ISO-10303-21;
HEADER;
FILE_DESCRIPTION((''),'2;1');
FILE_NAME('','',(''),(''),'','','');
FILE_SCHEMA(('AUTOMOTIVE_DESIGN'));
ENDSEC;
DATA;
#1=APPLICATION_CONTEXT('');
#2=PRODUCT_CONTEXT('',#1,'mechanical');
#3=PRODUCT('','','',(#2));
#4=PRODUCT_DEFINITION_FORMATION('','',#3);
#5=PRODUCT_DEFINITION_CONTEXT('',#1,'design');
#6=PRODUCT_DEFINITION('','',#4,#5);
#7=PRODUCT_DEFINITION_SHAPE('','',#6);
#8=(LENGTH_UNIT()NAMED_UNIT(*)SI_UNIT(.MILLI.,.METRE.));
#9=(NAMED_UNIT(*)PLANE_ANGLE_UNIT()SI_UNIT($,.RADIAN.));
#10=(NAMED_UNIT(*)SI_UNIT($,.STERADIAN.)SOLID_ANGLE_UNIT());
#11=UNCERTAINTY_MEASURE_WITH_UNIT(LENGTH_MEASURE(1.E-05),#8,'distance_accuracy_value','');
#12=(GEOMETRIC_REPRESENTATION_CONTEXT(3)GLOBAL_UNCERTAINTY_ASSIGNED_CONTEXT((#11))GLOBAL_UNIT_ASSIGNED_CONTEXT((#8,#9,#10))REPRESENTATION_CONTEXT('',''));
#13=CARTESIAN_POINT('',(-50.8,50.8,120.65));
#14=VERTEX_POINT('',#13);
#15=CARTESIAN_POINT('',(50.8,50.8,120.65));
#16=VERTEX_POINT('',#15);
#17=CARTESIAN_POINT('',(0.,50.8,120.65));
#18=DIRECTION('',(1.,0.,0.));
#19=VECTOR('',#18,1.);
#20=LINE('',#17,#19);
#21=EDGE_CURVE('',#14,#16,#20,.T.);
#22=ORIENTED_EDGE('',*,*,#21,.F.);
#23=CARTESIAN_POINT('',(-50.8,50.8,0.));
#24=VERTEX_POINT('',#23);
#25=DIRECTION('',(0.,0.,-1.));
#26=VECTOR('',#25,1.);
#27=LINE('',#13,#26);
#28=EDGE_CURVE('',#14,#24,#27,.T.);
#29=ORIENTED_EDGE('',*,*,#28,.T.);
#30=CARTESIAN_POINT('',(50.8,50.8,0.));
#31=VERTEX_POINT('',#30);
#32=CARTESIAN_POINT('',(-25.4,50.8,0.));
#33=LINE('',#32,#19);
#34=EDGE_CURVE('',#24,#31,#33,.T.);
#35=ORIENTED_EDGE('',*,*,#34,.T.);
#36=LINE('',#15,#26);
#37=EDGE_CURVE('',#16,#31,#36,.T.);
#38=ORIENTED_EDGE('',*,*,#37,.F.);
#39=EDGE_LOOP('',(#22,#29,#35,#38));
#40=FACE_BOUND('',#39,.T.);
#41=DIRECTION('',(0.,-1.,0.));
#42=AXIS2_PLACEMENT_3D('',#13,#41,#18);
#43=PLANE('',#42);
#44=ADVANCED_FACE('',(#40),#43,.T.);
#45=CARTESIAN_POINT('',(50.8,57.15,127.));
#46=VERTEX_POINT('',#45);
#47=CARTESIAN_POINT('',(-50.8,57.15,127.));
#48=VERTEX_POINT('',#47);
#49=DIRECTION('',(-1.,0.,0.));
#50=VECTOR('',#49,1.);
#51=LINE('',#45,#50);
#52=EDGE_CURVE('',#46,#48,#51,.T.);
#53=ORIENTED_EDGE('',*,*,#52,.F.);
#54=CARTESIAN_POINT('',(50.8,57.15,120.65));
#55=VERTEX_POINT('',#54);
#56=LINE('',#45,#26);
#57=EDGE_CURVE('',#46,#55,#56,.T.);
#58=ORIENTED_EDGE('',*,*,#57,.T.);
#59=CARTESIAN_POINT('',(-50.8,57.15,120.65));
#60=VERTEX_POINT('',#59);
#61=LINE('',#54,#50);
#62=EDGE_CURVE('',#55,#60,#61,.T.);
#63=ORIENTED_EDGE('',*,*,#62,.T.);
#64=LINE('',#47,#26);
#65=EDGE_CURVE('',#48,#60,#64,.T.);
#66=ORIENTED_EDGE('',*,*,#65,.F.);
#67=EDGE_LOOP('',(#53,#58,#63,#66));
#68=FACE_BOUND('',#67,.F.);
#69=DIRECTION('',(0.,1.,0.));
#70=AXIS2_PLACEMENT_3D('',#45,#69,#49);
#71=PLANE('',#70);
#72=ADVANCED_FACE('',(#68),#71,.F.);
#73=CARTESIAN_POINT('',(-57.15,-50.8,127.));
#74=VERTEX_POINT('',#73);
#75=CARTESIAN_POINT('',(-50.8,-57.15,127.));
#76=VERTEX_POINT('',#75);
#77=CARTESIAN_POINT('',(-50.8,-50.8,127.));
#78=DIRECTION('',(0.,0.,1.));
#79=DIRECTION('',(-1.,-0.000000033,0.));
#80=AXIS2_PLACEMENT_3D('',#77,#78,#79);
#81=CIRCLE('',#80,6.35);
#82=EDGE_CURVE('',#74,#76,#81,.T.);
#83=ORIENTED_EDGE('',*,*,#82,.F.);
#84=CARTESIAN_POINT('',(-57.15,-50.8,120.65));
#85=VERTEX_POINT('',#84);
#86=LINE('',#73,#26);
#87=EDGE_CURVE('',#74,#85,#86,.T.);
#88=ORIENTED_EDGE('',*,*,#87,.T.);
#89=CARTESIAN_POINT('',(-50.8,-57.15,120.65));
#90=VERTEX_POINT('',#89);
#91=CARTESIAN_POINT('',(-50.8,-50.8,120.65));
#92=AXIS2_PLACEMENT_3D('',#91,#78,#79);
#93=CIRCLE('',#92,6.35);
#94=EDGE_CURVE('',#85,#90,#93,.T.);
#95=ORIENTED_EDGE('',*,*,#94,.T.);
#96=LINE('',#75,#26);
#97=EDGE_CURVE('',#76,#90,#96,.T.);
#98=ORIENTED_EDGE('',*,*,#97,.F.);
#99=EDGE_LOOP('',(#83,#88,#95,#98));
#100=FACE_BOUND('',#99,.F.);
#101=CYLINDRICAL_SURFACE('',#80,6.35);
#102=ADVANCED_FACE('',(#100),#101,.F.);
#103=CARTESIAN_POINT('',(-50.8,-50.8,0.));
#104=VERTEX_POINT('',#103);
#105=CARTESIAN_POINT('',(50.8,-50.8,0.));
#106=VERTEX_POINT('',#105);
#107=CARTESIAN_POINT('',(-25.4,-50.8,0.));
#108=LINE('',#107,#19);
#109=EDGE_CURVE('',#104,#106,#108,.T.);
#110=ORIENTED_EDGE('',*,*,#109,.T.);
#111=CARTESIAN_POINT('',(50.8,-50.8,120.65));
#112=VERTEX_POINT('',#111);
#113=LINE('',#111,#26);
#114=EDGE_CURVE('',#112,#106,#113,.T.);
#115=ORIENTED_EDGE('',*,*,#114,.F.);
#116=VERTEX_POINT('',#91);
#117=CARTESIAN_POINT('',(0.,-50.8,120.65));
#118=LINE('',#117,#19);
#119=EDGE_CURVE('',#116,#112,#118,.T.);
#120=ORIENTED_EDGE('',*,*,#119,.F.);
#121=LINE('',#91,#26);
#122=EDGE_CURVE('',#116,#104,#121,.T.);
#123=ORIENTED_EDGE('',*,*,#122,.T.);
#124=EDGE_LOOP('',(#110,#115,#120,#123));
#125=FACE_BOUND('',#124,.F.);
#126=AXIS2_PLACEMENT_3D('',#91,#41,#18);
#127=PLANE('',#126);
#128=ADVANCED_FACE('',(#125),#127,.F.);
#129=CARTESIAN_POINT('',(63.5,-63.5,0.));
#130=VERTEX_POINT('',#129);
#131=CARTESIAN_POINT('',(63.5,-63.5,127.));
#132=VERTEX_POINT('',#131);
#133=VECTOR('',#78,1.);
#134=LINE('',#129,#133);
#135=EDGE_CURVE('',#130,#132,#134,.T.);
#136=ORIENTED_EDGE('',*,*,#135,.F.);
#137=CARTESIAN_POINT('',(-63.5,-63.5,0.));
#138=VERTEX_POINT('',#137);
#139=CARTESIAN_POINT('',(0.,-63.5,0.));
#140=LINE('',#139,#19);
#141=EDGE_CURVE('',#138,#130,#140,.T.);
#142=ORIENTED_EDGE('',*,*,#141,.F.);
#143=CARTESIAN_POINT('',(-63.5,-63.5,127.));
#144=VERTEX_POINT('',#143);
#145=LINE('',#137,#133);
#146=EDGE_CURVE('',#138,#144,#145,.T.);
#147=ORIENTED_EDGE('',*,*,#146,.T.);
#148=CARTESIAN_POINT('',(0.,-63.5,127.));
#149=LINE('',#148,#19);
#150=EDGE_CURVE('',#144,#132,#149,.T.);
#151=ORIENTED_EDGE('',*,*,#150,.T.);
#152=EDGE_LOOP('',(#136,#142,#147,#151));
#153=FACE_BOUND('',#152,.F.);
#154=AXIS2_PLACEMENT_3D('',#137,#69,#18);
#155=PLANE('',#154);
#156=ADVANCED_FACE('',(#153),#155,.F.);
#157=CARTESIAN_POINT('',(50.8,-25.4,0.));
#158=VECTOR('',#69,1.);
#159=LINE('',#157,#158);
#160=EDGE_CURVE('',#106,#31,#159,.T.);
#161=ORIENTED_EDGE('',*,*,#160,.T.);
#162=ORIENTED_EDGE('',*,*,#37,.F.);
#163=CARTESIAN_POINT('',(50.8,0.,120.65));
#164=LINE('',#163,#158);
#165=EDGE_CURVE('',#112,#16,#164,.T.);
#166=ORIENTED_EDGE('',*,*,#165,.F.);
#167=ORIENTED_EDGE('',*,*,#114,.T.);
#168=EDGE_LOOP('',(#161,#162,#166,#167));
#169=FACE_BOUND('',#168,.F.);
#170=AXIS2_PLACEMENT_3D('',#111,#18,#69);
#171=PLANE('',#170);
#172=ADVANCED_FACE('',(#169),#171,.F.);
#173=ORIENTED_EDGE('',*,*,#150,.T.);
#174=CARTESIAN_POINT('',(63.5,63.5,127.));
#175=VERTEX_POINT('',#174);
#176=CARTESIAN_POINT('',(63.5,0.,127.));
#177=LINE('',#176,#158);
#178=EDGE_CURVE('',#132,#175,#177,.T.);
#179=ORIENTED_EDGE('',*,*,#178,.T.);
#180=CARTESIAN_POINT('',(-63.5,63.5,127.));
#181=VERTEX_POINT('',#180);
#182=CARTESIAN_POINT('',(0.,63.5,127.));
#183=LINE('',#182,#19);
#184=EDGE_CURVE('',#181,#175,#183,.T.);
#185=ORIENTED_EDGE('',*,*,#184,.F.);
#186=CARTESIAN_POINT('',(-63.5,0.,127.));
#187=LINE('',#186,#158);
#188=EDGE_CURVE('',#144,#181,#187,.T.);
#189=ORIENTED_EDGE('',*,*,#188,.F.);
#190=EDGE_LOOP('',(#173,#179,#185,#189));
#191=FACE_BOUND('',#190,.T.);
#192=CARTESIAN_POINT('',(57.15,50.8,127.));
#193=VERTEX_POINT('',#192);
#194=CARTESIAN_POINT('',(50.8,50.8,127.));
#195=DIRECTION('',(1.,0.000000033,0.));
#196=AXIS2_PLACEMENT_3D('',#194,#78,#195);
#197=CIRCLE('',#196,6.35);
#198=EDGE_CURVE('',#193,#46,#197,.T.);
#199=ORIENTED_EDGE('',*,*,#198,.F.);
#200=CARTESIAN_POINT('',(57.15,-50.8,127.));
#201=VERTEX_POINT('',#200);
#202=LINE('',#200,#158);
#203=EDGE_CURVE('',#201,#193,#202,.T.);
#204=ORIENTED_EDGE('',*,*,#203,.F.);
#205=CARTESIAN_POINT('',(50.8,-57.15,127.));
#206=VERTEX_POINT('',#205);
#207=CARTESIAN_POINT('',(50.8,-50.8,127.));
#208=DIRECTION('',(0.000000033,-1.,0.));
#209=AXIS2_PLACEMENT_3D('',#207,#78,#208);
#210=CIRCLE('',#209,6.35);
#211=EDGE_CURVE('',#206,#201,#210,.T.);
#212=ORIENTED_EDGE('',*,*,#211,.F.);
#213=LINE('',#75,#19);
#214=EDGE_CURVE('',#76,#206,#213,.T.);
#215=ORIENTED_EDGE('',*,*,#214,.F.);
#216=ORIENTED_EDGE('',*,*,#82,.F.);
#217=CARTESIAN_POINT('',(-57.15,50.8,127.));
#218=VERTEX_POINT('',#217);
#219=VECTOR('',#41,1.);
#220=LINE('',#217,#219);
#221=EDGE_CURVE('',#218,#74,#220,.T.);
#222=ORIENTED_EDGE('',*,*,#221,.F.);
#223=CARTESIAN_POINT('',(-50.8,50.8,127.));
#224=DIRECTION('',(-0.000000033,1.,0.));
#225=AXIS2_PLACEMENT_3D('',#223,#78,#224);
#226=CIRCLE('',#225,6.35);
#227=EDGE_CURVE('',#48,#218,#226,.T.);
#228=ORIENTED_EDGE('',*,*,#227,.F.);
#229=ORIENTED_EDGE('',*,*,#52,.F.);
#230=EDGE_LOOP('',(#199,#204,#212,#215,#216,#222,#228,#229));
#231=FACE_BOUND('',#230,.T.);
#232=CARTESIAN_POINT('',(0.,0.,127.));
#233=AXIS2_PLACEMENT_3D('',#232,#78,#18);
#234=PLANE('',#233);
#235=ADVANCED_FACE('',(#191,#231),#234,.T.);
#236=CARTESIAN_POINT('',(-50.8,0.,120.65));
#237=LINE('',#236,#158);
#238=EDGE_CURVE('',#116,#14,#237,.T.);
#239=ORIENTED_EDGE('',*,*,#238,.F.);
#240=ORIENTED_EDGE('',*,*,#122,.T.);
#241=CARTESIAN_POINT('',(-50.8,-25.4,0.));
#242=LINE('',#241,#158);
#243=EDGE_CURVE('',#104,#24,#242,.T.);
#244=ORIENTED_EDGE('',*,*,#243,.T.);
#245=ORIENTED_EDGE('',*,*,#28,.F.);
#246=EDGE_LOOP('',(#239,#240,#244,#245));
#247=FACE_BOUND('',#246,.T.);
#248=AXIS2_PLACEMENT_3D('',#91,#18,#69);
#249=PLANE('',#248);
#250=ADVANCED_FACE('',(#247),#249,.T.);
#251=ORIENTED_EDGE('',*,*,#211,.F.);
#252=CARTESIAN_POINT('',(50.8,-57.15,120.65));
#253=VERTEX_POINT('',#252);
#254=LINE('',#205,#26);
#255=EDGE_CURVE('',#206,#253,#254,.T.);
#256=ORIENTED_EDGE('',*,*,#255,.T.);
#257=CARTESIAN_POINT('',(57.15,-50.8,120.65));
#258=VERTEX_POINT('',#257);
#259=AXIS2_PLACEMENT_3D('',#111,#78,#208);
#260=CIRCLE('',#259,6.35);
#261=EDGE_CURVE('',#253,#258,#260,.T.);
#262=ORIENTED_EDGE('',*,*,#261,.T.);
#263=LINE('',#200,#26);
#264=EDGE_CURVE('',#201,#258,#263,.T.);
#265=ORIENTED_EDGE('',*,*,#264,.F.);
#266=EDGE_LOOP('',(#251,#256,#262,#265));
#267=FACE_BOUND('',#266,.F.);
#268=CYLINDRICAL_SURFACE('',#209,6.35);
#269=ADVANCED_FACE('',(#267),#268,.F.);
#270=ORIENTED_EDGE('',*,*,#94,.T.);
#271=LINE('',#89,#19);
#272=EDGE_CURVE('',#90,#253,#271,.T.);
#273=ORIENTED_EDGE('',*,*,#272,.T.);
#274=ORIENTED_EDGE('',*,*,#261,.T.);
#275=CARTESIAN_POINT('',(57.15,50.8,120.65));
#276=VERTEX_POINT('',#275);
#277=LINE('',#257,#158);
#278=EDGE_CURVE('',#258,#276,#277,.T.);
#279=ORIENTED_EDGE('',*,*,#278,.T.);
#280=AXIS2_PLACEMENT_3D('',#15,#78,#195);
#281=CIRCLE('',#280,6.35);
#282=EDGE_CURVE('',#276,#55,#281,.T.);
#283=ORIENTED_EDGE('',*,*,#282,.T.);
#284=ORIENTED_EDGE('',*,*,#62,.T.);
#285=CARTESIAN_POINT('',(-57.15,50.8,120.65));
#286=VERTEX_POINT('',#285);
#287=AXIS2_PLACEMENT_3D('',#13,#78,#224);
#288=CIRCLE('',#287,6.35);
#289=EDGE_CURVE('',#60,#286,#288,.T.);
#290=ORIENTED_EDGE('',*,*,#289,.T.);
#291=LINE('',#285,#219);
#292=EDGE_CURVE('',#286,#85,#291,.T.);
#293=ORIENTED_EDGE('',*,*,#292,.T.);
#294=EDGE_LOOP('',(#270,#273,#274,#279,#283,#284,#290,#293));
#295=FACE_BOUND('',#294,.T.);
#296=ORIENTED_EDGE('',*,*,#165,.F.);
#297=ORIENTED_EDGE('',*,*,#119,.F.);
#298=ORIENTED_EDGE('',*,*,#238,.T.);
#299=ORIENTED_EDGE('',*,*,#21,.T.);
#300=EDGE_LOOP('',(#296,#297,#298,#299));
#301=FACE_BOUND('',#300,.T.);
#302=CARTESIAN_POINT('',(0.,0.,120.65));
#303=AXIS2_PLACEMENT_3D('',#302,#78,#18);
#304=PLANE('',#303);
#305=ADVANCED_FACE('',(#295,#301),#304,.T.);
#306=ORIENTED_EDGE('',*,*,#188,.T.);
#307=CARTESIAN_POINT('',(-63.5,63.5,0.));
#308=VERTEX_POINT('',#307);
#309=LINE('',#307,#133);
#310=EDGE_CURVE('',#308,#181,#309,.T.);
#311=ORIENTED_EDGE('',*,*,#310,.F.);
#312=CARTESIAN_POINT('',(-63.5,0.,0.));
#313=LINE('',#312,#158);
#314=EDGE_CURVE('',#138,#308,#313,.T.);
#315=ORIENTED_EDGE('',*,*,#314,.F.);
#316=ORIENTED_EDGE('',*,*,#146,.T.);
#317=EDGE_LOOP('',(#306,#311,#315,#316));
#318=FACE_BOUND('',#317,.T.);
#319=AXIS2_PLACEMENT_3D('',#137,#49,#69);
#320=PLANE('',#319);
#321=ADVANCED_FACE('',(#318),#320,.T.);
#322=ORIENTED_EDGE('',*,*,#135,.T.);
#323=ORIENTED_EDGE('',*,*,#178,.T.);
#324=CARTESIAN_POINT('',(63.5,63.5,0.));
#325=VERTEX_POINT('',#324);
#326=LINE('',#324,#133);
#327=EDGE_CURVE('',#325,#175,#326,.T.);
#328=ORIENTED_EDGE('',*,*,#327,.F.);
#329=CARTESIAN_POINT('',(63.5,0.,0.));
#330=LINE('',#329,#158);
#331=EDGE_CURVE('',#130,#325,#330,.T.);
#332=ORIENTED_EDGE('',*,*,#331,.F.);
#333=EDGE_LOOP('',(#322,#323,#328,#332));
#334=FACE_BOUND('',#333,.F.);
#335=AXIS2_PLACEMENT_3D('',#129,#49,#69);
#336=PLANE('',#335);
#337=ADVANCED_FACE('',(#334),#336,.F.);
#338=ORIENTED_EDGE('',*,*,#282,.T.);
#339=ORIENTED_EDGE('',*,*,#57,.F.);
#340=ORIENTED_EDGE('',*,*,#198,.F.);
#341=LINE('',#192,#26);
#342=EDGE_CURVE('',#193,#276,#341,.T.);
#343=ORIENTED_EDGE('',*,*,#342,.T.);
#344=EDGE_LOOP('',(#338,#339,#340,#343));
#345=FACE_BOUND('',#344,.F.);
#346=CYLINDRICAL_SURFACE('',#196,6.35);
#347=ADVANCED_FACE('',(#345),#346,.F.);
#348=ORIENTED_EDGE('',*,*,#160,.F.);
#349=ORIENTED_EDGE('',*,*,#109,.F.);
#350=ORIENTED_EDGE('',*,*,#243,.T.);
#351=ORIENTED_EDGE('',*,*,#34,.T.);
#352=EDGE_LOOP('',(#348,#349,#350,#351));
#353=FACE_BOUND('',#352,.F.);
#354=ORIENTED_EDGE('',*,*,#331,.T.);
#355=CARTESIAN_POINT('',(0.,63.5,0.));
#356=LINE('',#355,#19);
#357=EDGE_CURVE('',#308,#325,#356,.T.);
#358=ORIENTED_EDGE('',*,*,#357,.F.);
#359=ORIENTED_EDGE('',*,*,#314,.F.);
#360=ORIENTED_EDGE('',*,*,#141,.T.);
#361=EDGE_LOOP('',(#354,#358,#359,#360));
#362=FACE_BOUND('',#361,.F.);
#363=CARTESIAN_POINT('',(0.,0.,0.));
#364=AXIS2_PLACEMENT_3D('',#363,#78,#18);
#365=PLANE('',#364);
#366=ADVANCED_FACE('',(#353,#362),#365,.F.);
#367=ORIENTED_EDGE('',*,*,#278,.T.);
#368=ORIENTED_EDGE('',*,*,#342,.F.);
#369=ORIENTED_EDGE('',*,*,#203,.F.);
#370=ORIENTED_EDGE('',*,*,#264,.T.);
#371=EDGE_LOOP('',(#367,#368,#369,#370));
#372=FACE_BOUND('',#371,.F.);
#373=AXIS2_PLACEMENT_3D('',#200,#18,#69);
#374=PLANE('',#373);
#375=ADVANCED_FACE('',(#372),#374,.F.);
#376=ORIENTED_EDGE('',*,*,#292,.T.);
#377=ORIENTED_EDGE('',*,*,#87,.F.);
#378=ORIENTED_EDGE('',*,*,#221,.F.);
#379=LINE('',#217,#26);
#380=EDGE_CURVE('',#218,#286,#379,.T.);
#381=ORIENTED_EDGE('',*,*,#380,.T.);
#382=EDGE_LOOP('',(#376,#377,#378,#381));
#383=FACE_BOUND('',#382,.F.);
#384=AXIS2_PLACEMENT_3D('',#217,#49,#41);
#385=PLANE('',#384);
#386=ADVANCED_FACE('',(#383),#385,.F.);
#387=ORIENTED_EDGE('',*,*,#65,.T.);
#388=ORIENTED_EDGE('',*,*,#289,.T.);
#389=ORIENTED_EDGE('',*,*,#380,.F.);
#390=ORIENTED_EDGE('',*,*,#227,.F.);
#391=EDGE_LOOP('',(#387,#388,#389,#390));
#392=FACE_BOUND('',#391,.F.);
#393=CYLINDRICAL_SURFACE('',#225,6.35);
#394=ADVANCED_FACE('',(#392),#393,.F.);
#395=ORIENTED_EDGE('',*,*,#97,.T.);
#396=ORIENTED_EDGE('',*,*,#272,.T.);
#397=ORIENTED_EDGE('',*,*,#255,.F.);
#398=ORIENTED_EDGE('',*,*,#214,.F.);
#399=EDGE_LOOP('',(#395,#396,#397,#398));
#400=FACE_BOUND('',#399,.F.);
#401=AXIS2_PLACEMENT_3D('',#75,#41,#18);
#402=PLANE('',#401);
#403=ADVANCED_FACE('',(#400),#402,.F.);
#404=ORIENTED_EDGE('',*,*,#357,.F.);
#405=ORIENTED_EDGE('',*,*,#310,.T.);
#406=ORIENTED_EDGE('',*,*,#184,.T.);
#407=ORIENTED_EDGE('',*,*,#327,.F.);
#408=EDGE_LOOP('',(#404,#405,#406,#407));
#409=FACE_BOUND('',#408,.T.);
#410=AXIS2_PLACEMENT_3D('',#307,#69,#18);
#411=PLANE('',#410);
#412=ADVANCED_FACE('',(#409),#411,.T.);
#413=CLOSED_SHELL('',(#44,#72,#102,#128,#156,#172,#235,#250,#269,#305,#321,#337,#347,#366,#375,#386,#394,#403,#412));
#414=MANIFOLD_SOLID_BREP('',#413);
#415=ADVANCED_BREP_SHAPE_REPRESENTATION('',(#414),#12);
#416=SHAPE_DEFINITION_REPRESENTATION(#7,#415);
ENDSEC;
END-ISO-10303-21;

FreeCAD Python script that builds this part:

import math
import FreeCAD as App
import Part
import Sketcher
Q = App.Units.Quantity

doc = App.newDocument("Part")
params = doc.addObject("Spreadsheet::Sheet", "Params")
for row, (alias, value) in enumerate([
    ("sketch1_width", "5 in"),
    ("pad1_length", "5 in"),
    ("sketch2_width", "4 in"),
    ("sketch2_radius", "0.25 in"),
    ("pocket1_length", "0.25 in"),
    ("sketch3_width", "4 in"),
    ("pocket2_length", "5 in"),
], start=1):
    params.set(f"A{row}", alias)
    params.set(f"B{row}", "=" + value)
    params.setAlias(f"B{row}", alias)

body = doc.addObject("PartDesign::Body", "Body")

# Sketch on XY plane
sketch1 = doc.addObject("Sketcher::SketchObject", "Sketch")
body.addObject(sketch1)
sketch1.AttachmentSupport = (doc.XY_Plane, [""])
sketch1.MapMode = "FlatFace"
sketch1.addGeometry([
    Part.LineSegment(App.Vector(-63.5, 63.5, 0), App.Vector(-63.5, -63.5, 0)),
    Part.LineSegment(App.Vector(-63.5, -63.5, 0), App.Vector(63.5, -63.5, 0)),
    Part.LineSegment(App.Vector(63.5, -63.5, 0), App.Vector(63.5, 63.5, 0)),
    Part.LineSegment(App.Vector(63.5, 63.5, 0), App.Vector(-63.5, 63.5, 0)),
], False)
sketch1.addConstraint([
    Sketcher.Constraint("Coincident", 0, 2, 1, 1),
    Sketcher.Constraint("Coincident", 1, 2, 2, 1),
    Sketcher.Constraint("Coincident", 2, 2, 3, 1),
    Sketcher.Constraint("Coincident", 3, 2, 0, 1),
    Sketcher.Constraint("Vertical", 0),
    Sketcher.Constraint("Horizontal", 1),
    Sketcher.Constraint("Vertical", 2),
    Sketcher.Constraint("Horizontal", 3),
    Sketcher.Constraint("Symmetric", 0, 2, 2, 2, -1, 1),
    Sketcher.Constraint("Equal", 3, 0),
    Sketcher.Constraint("DistanceX", 1, 1, 1, 2, Q("5 in")),
])
sketch1.setExpression("Constraints[10]", "Params.sketch1_width")
pad1 = doc.addObject("PartDesign::Pad", "Pad")
body.addObject(pad1)
pad1.Profile = sketch1
pad1.setExpression("Length", "Params.pad1_length")

# Sketch on XY plane
sketch2 = doc.addObject("Sketcher::SketchObject", "Sketch001")
body.addObject(sketch2)
sketch2.AttachmentSupport = (doc.XY_Plane, [""])
sketch2.MapMode = "FlatFace"
sketch2.AttachmentOffset = App.Placement(App.Vector(0, 0, 5 * 25.4), App.Rotation())
sketch2.addGeometry([
    Part.LineSegment(App.Vector(-50.8, -57.15, 0), App.Vector(50.8, -57.15, 0)),  # 0
    Part.ArcOfCircle(Part.Circle(App.Vector(50.8, -50.8, 0), App.Vector(0, 0, 1), 6.35), math.radians(-89.999998), math.radians(-0.000002)),  # 1
    Part.LineSegment(App.Vector(57.15, -50.8, 0), App.Vector(57.15, 50.8, 0)),  # 2
    Part.ArcOfCircle(Part.Circle(App.Vector(50.8, 50.8, 0), App.Vector(0, 0, 1), 6.35), math.radians(0.000002), math.radians(89.999998)),  # 3
    Part.LineSegment(App.Vector(50.8, 57.15, 0), App.Vector(-50.8, 57.15, 0)),  # 4
    Part.ArcOfCircle(Part.Circle(App.Vector(-50.8, 50.8, 0), App.Vector(0, 0, 1), 6.35), math.radians(90.000002), math.radians(179.999998)),  # 5
    Part.LineSegment(App.Vector(-57.15, 50.8, 0), App.Vector(-57.15, -50.8, 0)),  # 6
    Part.ArcOfCircle(Part.Circle(App.Vector(-50.8, -50.8, 0), App.Vector(0, 0, 1), 6.35), math.radians(-179.999998), math.radians(-90.000002)),  # 7
], False)
sketch2.addConstraint([
    Sketcher.Constraint("Tangent", 0, 2, 1, 1),
    Sketcher.Constraint("Tangent", 1, 2, 2, 1),
    Sketcher.Constraint("Tangent", 2, 2, 3, 1),
    Sketcher.Constraint("Tangent", 3, 2, 4, 1),
    Sketcher.Constraint("Tangent", 4, 2, 5, 1),
    Sketcher.Constraint("Tangent", 5, 2, 6, 1),
    Sketcher.Constraint("Tangent", 6, 2, 7, 1),
    Sketcher.Constraint("Tangent", 7, 2, 0, 1),
    Sketcher.Constraint("Horizontal", 0),
    Sketcher.Constraint("Vertical", 2),
    Sketcher.Constraint("Horizontal", 4),
    Sketcher.Constraint("Vertical", 6),
    Sketcher.Constraint("Equal", 1, 3),
    Sketcher.Constraint("Equal", 3, 5),
    Sketcher.Constraint("Equal", 5, 7),
    Sketcher.Constraint("Symmetric", 1, 3, 5, 3, -1, 1),
    Sketcher.Constraint("Equal", 4, 2),
    Sketcher.Constraint("DistanceX", 0, 1, 0, 2, Q("4 in")),
    Sketcher.Constraint("Radius", 1, Q("0.25 in")),
])
sketch2.setExpression("Constraints[17]", "Params.sketch2_width")
sketch2.setExpression("Constraints[18]", "Params.sketch2_radius")
pocket1 = doc.addObject("PartDesign::Pocket", "Pocket")
body.addObject(pocket1)
pocket1.Profile = sketch2
pocket1.setExpression("Length", "Params.pocket1_length")

# Sketch on XY plane
sketch3 = doc.addObject("Sketcher::SketchObject", "Sketch002")
body.addObject(sketch3)
sketch3.AttachmentSupport = (doc.XY_Plane, [""])
sketch3.MapMode = "FlatFace"
sketch3.AttachmentOffset = App.Placement(App.Vector(0, 0, 4.75 * 25.4), App.Rotation())
sketch3.addGeometry([
    Part.LineSegment(App.Vector(-50.8, 50.8, 0), App.Vector(-50.8, -50.8, 0)),
    Part.LineSegment(App.Vector(-50.8, -50.8, 0), App.Vector(50.8, -50.8, 0)),
    Part.LineSegment(App.Vector(50.8, -50.8, 0), App.Vector(50.8, 50.8, 0)),
    Part.LineSegment(App.Vector(50.8, 50.8, 0), App.Vector(-50.8, 50.8, 0)),
], False)
sketch3.addConstraint([
    Sketcher.Constraint("Coincident", 0, 2, 1, 1),
    Sketcher.Constraint("Coincident", 1, 2, 2, 1),
    Sketcher.Constraint("Coincident", 2, 2, 3, 1),
    Sketcher.Constraint("Coincident", 3, 2, 0, 1),
    Sketcher.Constraint("Vertical", 0),
    Sketcher.Constraint("Horizontal", 1),
    Sketcher.Constraint("Vertical", 2),
    Sketcher.Constraint("Horizontal", 3),
    Sketcher.Constraint("Symmetric", 0, 2, 2, 2, -1, 1),
    Sketcher.Constraint("Equal", 3, 0),
    Sketcher.Constraint("DistanceX", 1, 1, 1, 2, Q("4 in")),
])
sketch3.setExpression("Constraints[10]", "Params.sketch3_width")
pocket2 = doc.addObject("PartDesign::Pocket", "Pocket001")
body.addObject(pocket2)
pocket2.Profile = sketch3
pocket2.setExpression("Length", "Params.pocket2_length")

doc.recompute()
